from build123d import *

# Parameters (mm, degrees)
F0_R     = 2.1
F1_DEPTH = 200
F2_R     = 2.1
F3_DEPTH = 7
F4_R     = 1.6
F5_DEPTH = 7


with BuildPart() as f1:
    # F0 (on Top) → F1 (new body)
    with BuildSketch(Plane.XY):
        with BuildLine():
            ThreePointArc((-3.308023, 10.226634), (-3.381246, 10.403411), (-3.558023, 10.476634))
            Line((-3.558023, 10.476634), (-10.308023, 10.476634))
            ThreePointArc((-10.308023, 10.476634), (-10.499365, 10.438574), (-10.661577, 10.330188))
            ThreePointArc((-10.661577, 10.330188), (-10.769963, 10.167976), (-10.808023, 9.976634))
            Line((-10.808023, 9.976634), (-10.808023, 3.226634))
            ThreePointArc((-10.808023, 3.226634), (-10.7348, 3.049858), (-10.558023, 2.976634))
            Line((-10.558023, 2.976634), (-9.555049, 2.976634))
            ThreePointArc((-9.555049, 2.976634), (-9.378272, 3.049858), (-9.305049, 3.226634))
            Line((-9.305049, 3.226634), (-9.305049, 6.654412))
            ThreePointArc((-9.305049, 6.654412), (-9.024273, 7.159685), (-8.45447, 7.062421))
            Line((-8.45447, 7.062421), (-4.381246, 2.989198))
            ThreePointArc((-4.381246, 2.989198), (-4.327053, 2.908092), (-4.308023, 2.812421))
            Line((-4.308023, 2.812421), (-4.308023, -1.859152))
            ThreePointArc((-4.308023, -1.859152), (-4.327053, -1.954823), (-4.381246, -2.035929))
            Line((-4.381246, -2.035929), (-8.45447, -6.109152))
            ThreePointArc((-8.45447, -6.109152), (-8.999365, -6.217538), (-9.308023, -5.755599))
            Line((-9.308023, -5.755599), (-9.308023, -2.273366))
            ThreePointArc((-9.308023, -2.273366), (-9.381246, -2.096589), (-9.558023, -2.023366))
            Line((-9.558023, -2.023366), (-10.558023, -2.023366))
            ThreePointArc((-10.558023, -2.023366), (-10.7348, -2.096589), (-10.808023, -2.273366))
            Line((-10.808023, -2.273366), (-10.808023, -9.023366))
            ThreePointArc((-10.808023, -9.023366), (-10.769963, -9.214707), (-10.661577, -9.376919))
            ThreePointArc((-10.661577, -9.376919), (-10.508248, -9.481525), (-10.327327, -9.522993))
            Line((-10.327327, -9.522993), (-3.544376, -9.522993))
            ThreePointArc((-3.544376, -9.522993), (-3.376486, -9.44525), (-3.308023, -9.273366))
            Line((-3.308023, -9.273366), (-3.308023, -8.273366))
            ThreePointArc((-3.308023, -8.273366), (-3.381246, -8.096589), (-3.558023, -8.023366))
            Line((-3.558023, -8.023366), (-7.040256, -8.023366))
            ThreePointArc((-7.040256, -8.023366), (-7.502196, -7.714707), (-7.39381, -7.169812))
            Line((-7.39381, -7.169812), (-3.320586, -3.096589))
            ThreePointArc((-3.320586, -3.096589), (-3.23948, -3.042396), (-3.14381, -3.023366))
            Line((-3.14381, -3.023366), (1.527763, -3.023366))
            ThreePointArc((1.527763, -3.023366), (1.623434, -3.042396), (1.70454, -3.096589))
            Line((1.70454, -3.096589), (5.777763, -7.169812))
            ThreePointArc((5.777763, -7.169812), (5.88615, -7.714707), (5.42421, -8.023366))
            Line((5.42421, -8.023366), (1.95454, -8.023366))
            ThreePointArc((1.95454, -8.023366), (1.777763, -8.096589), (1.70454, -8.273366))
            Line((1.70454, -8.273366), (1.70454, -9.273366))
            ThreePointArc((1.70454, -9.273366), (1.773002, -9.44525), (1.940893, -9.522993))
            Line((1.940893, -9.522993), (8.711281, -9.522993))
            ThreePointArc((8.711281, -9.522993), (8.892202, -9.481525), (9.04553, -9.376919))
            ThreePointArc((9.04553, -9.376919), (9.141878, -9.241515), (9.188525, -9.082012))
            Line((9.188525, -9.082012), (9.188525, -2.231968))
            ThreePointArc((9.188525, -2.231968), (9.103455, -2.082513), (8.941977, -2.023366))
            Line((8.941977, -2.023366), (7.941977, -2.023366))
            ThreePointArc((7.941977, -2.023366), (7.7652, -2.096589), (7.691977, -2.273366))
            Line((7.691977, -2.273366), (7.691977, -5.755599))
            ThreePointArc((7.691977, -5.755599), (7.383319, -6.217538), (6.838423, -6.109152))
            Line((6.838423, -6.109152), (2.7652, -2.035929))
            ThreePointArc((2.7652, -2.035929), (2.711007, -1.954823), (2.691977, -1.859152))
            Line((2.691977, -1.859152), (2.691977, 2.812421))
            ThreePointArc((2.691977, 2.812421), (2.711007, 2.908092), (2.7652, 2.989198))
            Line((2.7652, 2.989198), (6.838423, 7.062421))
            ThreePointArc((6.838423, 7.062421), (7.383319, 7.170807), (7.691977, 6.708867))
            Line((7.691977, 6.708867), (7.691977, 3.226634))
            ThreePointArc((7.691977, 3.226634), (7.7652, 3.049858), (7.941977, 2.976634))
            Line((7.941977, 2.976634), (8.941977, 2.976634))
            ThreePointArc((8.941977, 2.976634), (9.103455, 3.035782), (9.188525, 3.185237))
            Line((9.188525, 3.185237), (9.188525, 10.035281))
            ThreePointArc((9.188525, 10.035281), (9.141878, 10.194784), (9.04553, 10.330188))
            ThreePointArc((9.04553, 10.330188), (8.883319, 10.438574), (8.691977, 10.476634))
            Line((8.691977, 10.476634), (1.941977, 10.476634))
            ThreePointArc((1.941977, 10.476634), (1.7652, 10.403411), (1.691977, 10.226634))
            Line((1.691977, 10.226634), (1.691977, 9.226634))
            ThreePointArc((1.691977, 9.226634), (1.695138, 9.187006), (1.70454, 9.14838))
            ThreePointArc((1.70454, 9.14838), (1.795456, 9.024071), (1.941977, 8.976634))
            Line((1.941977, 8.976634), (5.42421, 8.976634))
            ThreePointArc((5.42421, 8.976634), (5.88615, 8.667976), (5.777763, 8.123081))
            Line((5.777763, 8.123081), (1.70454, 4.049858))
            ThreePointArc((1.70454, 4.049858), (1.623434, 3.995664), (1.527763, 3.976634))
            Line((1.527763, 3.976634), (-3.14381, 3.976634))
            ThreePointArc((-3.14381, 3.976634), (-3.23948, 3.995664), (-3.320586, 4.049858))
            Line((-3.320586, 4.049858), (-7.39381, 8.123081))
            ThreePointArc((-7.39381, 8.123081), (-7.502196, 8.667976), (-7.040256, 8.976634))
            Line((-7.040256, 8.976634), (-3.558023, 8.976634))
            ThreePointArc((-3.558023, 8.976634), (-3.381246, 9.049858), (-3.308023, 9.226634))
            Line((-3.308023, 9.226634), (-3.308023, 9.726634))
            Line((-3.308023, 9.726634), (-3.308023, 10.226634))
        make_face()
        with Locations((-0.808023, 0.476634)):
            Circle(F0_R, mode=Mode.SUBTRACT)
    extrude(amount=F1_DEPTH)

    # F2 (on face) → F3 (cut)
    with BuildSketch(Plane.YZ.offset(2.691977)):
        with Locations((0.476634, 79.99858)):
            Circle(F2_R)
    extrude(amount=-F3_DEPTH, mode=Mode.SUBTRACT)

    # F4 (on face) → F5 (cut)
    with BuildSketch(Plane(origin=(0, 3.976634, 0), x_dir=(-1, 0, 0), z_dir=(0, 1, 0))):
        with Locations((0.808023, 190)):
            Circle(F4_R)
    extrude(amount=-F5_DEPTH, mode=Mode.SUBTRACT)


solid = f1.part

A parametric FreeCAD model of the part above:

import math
import FreeCAD as App
import Part
import Sketcher

V = App.Vector
Q = App.Units.Quantity

doc = App.newDocument("Part")
params = doc.addObject("Spreadsheet::Sheet", "Params")
for row, (alias, value) in enumerate([
    ("sketch1_diameter", "4.2 mm"),
    ("sketch1_radius", "0.500002 mm"),
    ("sketch1_width", "1 mm"),
    ("sketch1_radius2", "0.249999 mm"),
    ("sketch1_width2", "6.75 mm"),
    ("pad1_length", "200 mm"),
    ("sketch2_diameter", "4.2 mm"),
    ("pocket1_length", "7 mm"),
    ("sketch3_diameter", "3.2 mm"),
    ("pocket2_length", "7 mm"),
], start=1):
    params.set(f"A{row}", alias)
    params.set(f"B{row}", "=" + value)
    params.setAlias(f"B{row}", alias)

body = doc.addObject("PartDesign::Body", "Body")

# Sketch on XY plane
sketch1 = body.newObject("Sketcher::SketchObject", "Sketch")
sketch1.AttachmentSupport = (doc.getObject("XY_Plane"), [""])
sketch1.MapMode = "FlatFace"
sketch1.addGeometry([
    Part.ArcOfCircle(Part.Circle(V(-3.56, 10.23, 0), V(0, 0, 1), 0.25), math.radians(0), math.radians(90)),  # 0
    Part.LineSegment(V(-3.56, 10.48, 0), V(-10.31, 10.48, 0)),  # 1
    Part.ArcOfCircle(Part.Circle(V(-10.31, 9.98, 0), V(0, 0, 1), 0.5), math.radians(90), math.radians(135)),  # 2
    Part.ArcOfCircle(Part.Circle(V(-10.31, 9.98, 0), V(0, 0, 1), 0.5), math.radians(135), math.radians(180)),  # 3
    Part.LineSegment(V(-10.81, 9.98, 0), V(-10.81, 3.23, 0)),  # 4
    Part.ArcOfCircle(Part.Circle(V(-10.56, 3.23, 0), V(0, 0, 1), 0.25), math.radians(-180), math.radians(-90)),  # 5
    Part.LineSegment(V(-10.56, 2.98, 0), V(-9.56, 2.98, 0)),  # 6
    Part.ArcOfCircle(Part.Circle(V(-9.56, 3.23, 0), V(0, 0, 1), 0.25), math.radians(-90), math.radians(0)),  # 7
    Part.LineSegment(V(-9.31, 3.23, 0), V(-9.31, 6.65, 0)),  # 8
    Part.ArcOfCircle(Part.Circle(V(-8.81, 6.71, 0), V(0, 0, 1), 0.5), math.radians(45), math.radians(186)),  # 9
    Part.LineSegment(V(-8.45, 7.06, 0), V(-4.38, 2.99, 0)),  # 10
    Part.ArcOfCircle(Part.Circle(V(-4.56, 2.81, 0), V(0, 0, 1), 0.25), math.radians(0), math.radians(45)),  # 11
    Part.LineSegment(V(-4.31, 2.81, 0), V(-4.31, -1.86, 0)),  # 12
    Part.ArcOfCircle(Part.Circle(V(-4.56, -1.86, 0), V(0, 0, 1), 0.25), math.radians(-45), math.radians(0)),  # 13
    Part.LineSegment(V(-4.38, -2.04, 0), V(-8.45, -6.11, 0)),  # 14
    Part.ArcOfCircle(Part.Circle(V(-8.81, -5.76, 0), V(0, 0, 1), 0.5), math.radians(-180), math.radians(-45)),  # 15
    Part.LineSegment(V(-9.31, -5.76, 0), V(-9.31, -2.27, 0)),  # 16
    Part.ArcOfCircle(Part.Circle(V(-9.56, -2.27, 0), V(0, 0, 1), 0.25), math.radians(0), math.radians(90)),  # 17
    Part.LineSegment(V(-9.56, -2.02, 0), V(-10.56, -2.02, 0)),  # 18
    Part.ArcOfCircle(Part.Circle(V(-10.56, -2.27, 0), V(0, 0, 1), 0.25), math.radians(90), math.radians(180)),  # 19
    Part.LineSegment(V(-10.81, -2.27, 0), V(-10.81, -9.02, 0)),  # 20
    Part.ArcOfCircle(Part.Circle(V(-10.31, -9.02, 0), V(0, 0, 1), 0.5), math.radians(-180), math.radians(-135)),  # 21
    Part.ArcOfCircle(Part.Circle(V(-10.31, -9.02, 0), V(0, 0, 1), 0.5), math.radians(-135), math.radians(-92)),  # 22
    Part.LineSegment(V(-10.33, -9.52, 0), V(-3.54, -9.52, 0)),  # 23
    Part.ArcOfCircle(Part.Circle(V(-3.56, -9.27, 0), V(0, 0, 1), 0.25), math.radians(-87), math.radians(0)),  # 24
    Part.LineSegment(V(-3.31, -9.27, 0), V(-3.31, -8.27, 0)),  # 25
    Part.ArcOfCircle(Part.Circle(V(-3.56, -8.27, 0), V(0, 0, 1), 0.25), math.radians(0), math.radians(90)),  # 26
    Part.LineSegment(V(-3.56, -8.02, 0), V(-7.04, -8.02, 0)),  # 27
    Part.ArcOfCircle(Part.Circle(V(-7.04, -7.52, 0), V(0, 0, 1), 0.5), math.radians(135), math.radians(270)),  # 28
    Part.LineSegment(V(-7.39, -7.17, 0), V(-3.32, -3.1, 0)),  # 29
    Part.ArcOfCircle(Part.Circle(V(-3.14, -3.27, 0), V(0, 0, 1), 0.25), math.radians(90), math.radians(135)),  # 30
    Part.LineSegment(V(-3.14, -3.02, 0), V(1.53, -3.02, 0)),  # 31
    Part.ArcOfCircle(Part.Circle(V(1.53, -3.27, 0), V(0, 0, 1), 0.25), math.radians(45), math.radians(90)),  # 32
    Part.LineSegment(V(1.7, -3.1, 0), V(5.78, -7.17, 0)),  # 33
    Part.ArcOfCircle(Part.Circle(V(5.42, -7.52, 0), V(0, 0, 1), 0.5), math.radians(-90), math.radians(45)),  # 34
    Part.LineSegment(V(5.42, -8.02, 0), V(1.95, -8.02, 0)),  # 35
    Part.ArcOfCircle(Part.Circle(V(1.95, -8.27, 0), V(0, 0, 1), 0.25), math.radians(90), math.radians(180)),  # 36
    Part.LineSegment(V(1.7, -8.27, 0), V(1.7, -9.27, 0)),  # 37
    Part.ArcOfCircle(Part.Circle(V(1.95, -9.27, 0), V(0, 0, 1), 0.25), math.radians(180), math.radians(267)),  # 38
    Part.LineSegment(V(1.94, -9.52, 0), V(8.71, -9.52, 0)),  # 39
    Part.ArcOfCircle(Part.Circle(V(8.69, -9.02, 0), V(0, 0, 1), 0.5), math.radians(-88), math.radians(-45)),  # 40
    Part.ArcOfCircle(Part.Circle(V(8.69, -9.02, 0), V(0, 0, 1), 0.5), math.radians(-45), math.radians(-7)),  # 41
    Part.LineSegment(V(9.19, -9.08, 0), V(9.19, -2.23, 0)),  # 42
    Part.ArcOfCircle(Part.Circle(V(8.94, -2.27, 0), V(0, 0, 1), 0.25), math.radians(10), math.radians(90)),  # 43
    Part.LineSegment(V(8.94, -2.02, 0), V(7.94, -2.02, 0)),  # 44
    Part.ArcOfCircle(Part.Circle(V(7.94, -2.27, 0), V(0, 0, 1), 0.25), math.radians(90), math.radians(180)),  # 45
    Part.LineSegment(V(7.69, -2.27, 0), V(7.69, -5.76, 0)),  # 46
    Part.ArcOfCircle(Part.Circle(V(7.19, -5.76, 0), V(0, 0, 1), 0.5), math.radians(-135), math.radians(0)),  # 47
    Part.LineSegment(V(6.84, -6.11, 0), V(2.77, -2.04, 0)),  # 48
    Part.ArcOfCircle(Part.Circle(V(2.94, -1.86, 0), V(0, 0, 1), 0.25), math.radians(180), math.radians(225)),  # 49
    Part.LineSegment(V(2.69, -1.86, 0), V(2.69, 2.81, 0)),  # 50
    Part.ArcOfCircle(Part.Circle(V(2.94, 2.81, 0), V(0, 0, 1), 0.25), math.radians(135), math.radians(180)),  # 51
    Part.LineSegment(V(2.77, 2.99, 0), V(6.84, 7.06, 0)),  # 52
    Part.ArcOfCircle(Part.Circle(V(7.19, 6.71, 0), V(0, 0, 1), 0.5), math.radians(0), math.radians(135)),  # 53
    Part.LineSegment(V(7.69, 6.71, 0), V(7.69, 3.23, 0)),  # 54
    Part.ArcOfCircle(Part.Circle(V(7.94, 3.23, 0), V(0, 0, 1), 0.25), math.radians(-180), math.radians(-90)),  # 55
    Part.LineSegment(V(7.94, 2.98, 0), V(8.94, 2.98, 0)),  # 56
    Part.ArcOfCircle(Part.Circle(V(8.94, 3.23, 0), V(0, 0, 1), 0.25), math.radians(-90), math.radians(-10)),  # 57
    Part.LineSegment(V(9.19, 3.19, 0), V(9.19, 10.04, 0)),  # 58
    Part.ArcOfCircle(Part.Circle(V(8.69, 9.98, 0), V(0, 0, 1), 0.5), math.radians(7), math.radians(45)),  # 59
    Part.ArcOfCircle(Part.Circle(V(8.69, 9.98, 0), V(0, 0, 1), 0.5), math.radians(45), math.radians(90)),  # 60
    Part.LineSegment(V(8.69, 10.48, 0), V(1.94, 10.48, 0)),  # 61
    Part.ArcOfCircle(Part.Circle(V(1.94, 10.23, 0), V(0, 0, 1), 0.25), math.radians(90), math.radians(180)),  # 62
    Part.LineSegment(V(1.69, 10.23, 0), V(1.69, 9.23, 0)),  # 63
    Part.ArcOfCircle(Part.Circle(V(1.94, 9.23, 0), V(0, 0, 1), 0.25), math.radians(-180), math.radians(-161.76)),  # 64
    Part.ArcOfCircle(Part.Circle(V(1.94, 9.23, 0), V(0, 0, 1), 0.25), math.radians(-162), math.radians(-90)),  # 65
    Part.LineSegment(V(1.94, 8.98, 0), V(5.42, 8.98, 0)),  # 66
    Part.ArcOfCircle(Part.Circle(V(5.42, 8.48, 0), V(0, 0, 1), 0.5), math.radians(-45), math.radians(90)),  # 67
    Part.LineSegment(V(5.78, 8.12, 0), V(1.7, 4.05, 0)),  # 68
    Part.ArcOfCircle(Part.Circle(V(1.53, 4.23, 0), V(0, 0, 1), 0.25), math.radians(-90), math.radians(-45)),  # 69
    Part.LineSegment(V(1.53, 3.98, 0), V(-3.14, 3.98, 0)),  # 70
    Part.ArcOfCircle(Part.Circle(V(-3.14, 4.23, 0), V(0, 0, 1), 0.25), math.radians(-135), math.radians(-90)),  # 71
    Part.LineSegment(V(-3.32, 4.05, 0), V(-7.39, 8.12, 0)),  # 72
    Part.ArcOfCircle(Part.Circle(V(-7.04, 8.48, 0), V(0, 0, 1), 0.5), math.radians(90), math.radians(225)),  # 73
    Part.LineSegment(V(-7.04, 8.98, 0), V(-3.56, 8.98, 0)),  # 74
    Part.ArcOfCircle(Part.Circle(V(-3.56, 9.23, 0), V(0, 0, 1), 0.25), math.radians(-90), math.radians(0)),  # 75
    Part.LineSegment(V(-3.31, 9.23, 0), V(-3.31, 10.23, 0)),  # 76
    Part.Circle(V(-0.81, 0.48, 0), V(0, 0, 1), 2.1),  # 77
], False)
sketch1.addConstraint([
    Sketcher.Constraint("Coincident", 0, 2, 1, 1),
    Sketcher.Constraint("Tangent", 1, 2, 2, 1),
    Sketcher.Constraint("Coincident", 2, 2, 3, 1),
    Sketcher.Constraint("Tangent", 3, 2, 4, 1),
    Sketcher.Constraint("Coincident", 4, 2, 5, 1),
    Sketcher.Constraint("Coincident", 5, 2, 6, 1),
    Sketcher.Constraint("Coincident", 6, 2, 7, 1),
    Sketcher.Constraint("Coincident", 7, 2, 8, 1),
    Sketcher.Constraint("Coincident", 8, 2, 9, 2),
    Sketcher.Constraint("Tangent", 9, 1, 10, 1),
    Sketcher.Constraint("Coincident", 10, 2, 11, 2),
    Sketcher.Constraint("Tangent", 11, 1, 12, 1),
    Sketcher.Constraint("Tangent", 12, 2, 13, 2),
    Sketcher.Constraint("Coincident", 13, 1, 14, 1),
    Sketcher.Constraint("Tangent", 14, 2, 15, 2),
    Sketcher.Constraint("Tangent", 15, 1, 16, 1),
    Sketcher.Constraint("Coincident", 16, 2, 17, 1),
    Sketcher.Constraint("Coincident", 17, 2, 18, 1),
    Sketcher.Constraint("Coincident", 18, 2, 19, 1),
    Sketcher.Constraint("Coincident", 19, 2, 20, 1),
    Sketcher.Constraint("Tangent", 20, 2, 21, 1),
    Sketcher.Constraint("Coincident", 21, 2, 22, 1),
    Sketcher.Constraint("Coincident", 22, 2, 23, 1),
    Sketcher.Constraint("Coincident", 23, 2, 24, 1),
    Sketcher.Constraint("Coincident", 24, 2, 25, 1),
    Sketcher.Constraint("Coincident", 25, 2, 26, 1),
    Sketcher.Constraint("Coincident", 26, 2, 27, 1),
    Sketcher.Constraint("Tangent", 27, 2, 28, 2),
    Sketcher.Constraint("Tangent", 28, 1, 29, 1),
    Sketcher.Constraint("Coincident", 29, 2, 30, 2),
    Sketcher.Constraint("Coincident", 30, 1, 31, 1),
    Sketcher.Constraint("Tangent", 31, 2, 32, 2),
    Sketcher.Constraint("Coincident", 32, 1, 33, 1),
    Sketcher.Constraint("Tangent", 33, 2, 34, 2),
    Sketcher.Constraint("Tangent", 34, 1, 35, 1),
    Sketcher.Constraint("Coincident", 35, 2, 36, 1),
    Sketcher.Constraint("Coincident", 36, 2, 37, 1),
    Sketcher.Constraint("Coincident", 37, 2, 38, 1),
    Sketcher.Constraint("Coincident", 38, 2, 39, 1),
    Sketcher.Constraint("Coincident", 39, 2, 40, 1),
    Sketcher.Constraint("Coincident", 40, 2, 41, 1),
    Sketcher.Constraint("Coincident", 41, 2, 42, 1),
    Sketcher.Constraint("Coincident", 42, 2, 43, 1),
    Sketcher.Constraint("Coincident", 43, 2, 44, 1),
    Sketcher.Constraint("Coincident", 44, 2, 45, 1),
    Sketcher.Constraint("Coincident", 45, 2, 46, 1),
    Sketcher.Constraint("Tangent", 46, 2, 47, 2),
    Sketcher.Constraint("Tangent", 47, 1, 48, 1),
    Sketcher.Constraint("Coincident", 48, 2, 49, 2),
    Sketcher.Constraint("Tangent", 49, 1, 50, 1),
    Sketcher.Constraint("Tangent", 50, 2, 51, 2),
    Sketcher.Constraint("Coincident", 51, 1, 52, 1),
    Sketcher.Constraint("Tangent", 52, 2, 53, 2),
    Sketcher.Constraint("Tangent", 53, 1, 54, 1),
    Sketcher.Constraint("Coincident", 54, 2, 55, 1),
    Sketcher.Constraint("Coincident", 55, 2, 56, 1),
    Sketcher.Constraint("Coincident", 56, 2, 57, 1),
    Sketcher.Constraint("Coincident", 57, 2, 58, 1),
    Sketcher.Constraint("Coincident", 58, 2, 59, 1),
    Sketcher.Constraint("Coincident", 59, 2, 60, 1),
    Sketcher.Constraint("Coincident", 60, 2, 61, 1),
    Sketcher.Constraint("Coincident", 61, 2, 62, 1),
    Sketcher.Constraint("Coincident", 62, 2, 63, 1),
    Sketcher.Constraint("Coincident", 63, 2, 64, 1),
    Sketcher.Constraint("Coincident", 64, 2, 65, 1),
    Sketcher.Constraint("Coincident", 65, 2, 66, 1),
    Sketcher.Constraint("Tangent", 66, 2, 67, 2),
    Sketcher.Constraint("Coincident", 67, 1, 68, 1),
    Sketcher.Constraint("Coincident", 68, 2, 69, 2),
    Sketcher.Constraint("Coincident", 69, 1, 70, 1),
    Sketcher.Constraint("Tangent", 70, 2, 71, 2),
    Sketcher.Constraint("Coincident", 71, 1, 72, 1),
    Sketcher.Constraint("Tangent", 72, 2, 73, 2),
    Sketcher.Constraint("Tangent", 73, 1, 74, 1),
    Sketcher.Constraint("Coincident", 74, 2, 75, 1),
    Sketcher.Constraint("Coincident", 75, 2, 76, 1),
    Sketcher.Constraint("Coincident", 76, 2, 0, 1),
    Sketcher.Constraint("Horizontal", 1),
    Sketcher.Constraint("Vertical", 4),
    Sketcher.Constraint("Horizontal", 6),
    Sketcher.Constraint("Vertical", 8),
    Sketcher.Constraint("Vertical", 12),
    Sketcher.Constraint("Vertical", 16),
    Sketcher.Constraint("Horizontal", 18),
    Sketcher.Constraint("Vertical", 20),
    Sketcher.Constraint("Horizontal", 23),
    Sketcher.Constraint("Vertical", 25),
    Sketcher.Constraint("Horizontal", 27),
    Sketcher.Constraint("Horizontal", 31),
    Sketcher.Constraint("Horizontal", 35),
    Sketcher.Constraint("Vertical", 37),
    Sketcher.Constraint("Horizontal", 39),
    Sketcher.Constraint("Vertical", 42),
    Sketcher.Constraint("Horizontal", 44),
    Sketcher.Constraint("Vertical", 46),
    Sketcher.Constraint("Vertical", 50),
    Sketcher.Constraint("Vertical", 54),
    Sketcher.Constraint("Horizontal", 56),
    Sketcher.Constraint("Vertical", 58),
    Sketcher.Constraint("Horizontal", 61),
    Sketcher.Constraint("Vertical", 63),
    Sketcher.Constraint("Horizontal", 66),
    Sketcher.Constraint("Horizontal", 70),
    Sketcher.Constraint("Horizontal", 74),
    Sketcher.Constraint("Vertical", 76),
    Sketcher.Constraint("Coincident", 3, 3, 2, 3),
    Sketcher.Constraint("Coincident", 22, 3, 21, 3),
    Sketcher.Constraint("Coincident", 41, 3, 40, 3),
    Sketcher.Constraint("Coincident", 60, 3, 59, 3),
    Sketcher.Constraint("Equal", 0, 5),
    Sketcher.Constraint("Equal", 5, 7),
    Sketcher.Constraint("Equal", 3, 9),
    Sketcher.Constraint("Equal", 7, 11),
    Sketcher.Constraint("Equal", 11, 13),
    Sketcher.Constraint("Equal", 9, 15),
    Sketcher.Constraint("Equal", 13, 17),
    Sketcher.Constraint("Equal", 17, 19),
    Sketcher.Constraint("Equal", 15, 21),
    Sketcher.Constraint("Equal", 19, 24),
    Sketcher.Constraint("Equal", 24, 26),
    Sketcher.Constraint("Equal", 21, 28),
    Sketcher.Constraint("Equal", 26, 30),
    Sketcher.Constraint("Equal", 30, 32),
    Sketcher.Constraint("Equal", 28, 34),
    Sketcher.Constraint("Equal", 32, 36),
    Sketcher.Constraint("Equal", 36, 38),
    Sketcher.Constraint("Equal", 34, 40),
    Sketcher.Constraint("Equal", 38, 43),
    Sketcher.Constraint("Equal", 43, 45),
    Sketcher.Constraint("Equal", 34, 47),
    Sketcher.Constraint("Equal", 45, 49),
    Sketcher.Constraint("Equal", 49, 51),
    Sketcher.Constraint("Equal", 47, 53),
    Sketcher.Constraint("Equal", 51, 55),
    Sketcher.Constraint("Equal", 55, 57),
    Sketcher.Constraint("Equal", 41, 59),
    Sketcher.Constraint("Equal", 57, 62),
    Sketcher.Constraint("Equal", 62, 65),
    Sketcher.Constraint("Equal", 53, 67),
    Sketcher.Constraint("Equal", 69, 71),
    Sketcher.Constraint("Equal", 67, 73),
    Sketcher.Constraint("Equal", 62, 75),
    Sketcher.Constraint("Perpendicular", 10, 14),
    Sketcher.Constraint("Parallel", 14, 29),
    Sketcher.Constraint("Perpendicular", 29, 33),
    Sketcher.Constraint("Parallel", 33, 48),
    Sketcher.Constraint("Perpendicular", 48, 52),
    Sketcher.Constraint("Parallel", 52, 68),
    Sketcher.Constraint("Perpendicular", 68, 72),
    Sketcher.Constraint("Horizontal", 28, 3, 34, 3),
    Sketcher.Constraint("Horizontal", 24, 3, 38, 3),
    Sketcher.Constraint("Horizontal", 19, 3, 43, 3),
    Sketcher.Constraint("Horizontal", 15, 3, 47, 3),
    Sketcher.Constraint("Horizontal", 13, 3, 49, 3),
    Sketcher.Constraint("Horizontal", 11, 3, 51, 3),
    Sketcher.Constraint("Horizontal", 9, 3, 53, 3),
    Sketcher.Constraint("Horizontal", 7, 3, 55, 3),
    Sketcher.Constraint("Horizontal", 0, 3, 62, 3),
    Sketcher.Constraint("Horizontal", 67, 3, 73, 3),
    Sketcher.Constraint("Horizontal", 57, 3, 4, 2),
    Sketcher.Constraint("Horizontal", 4, 2, 7, 2),
    Sketcher.Constraint("Horizontal", 45, 3, 16, 2),
    Sketcher.Constraint("Horizontal", 16, 2, 19, 2),
    Sketcher.Constraint("Horizontal", 40, 3, 20, 2),
    Sketcher.Constraint("Horizontal", 38, 3, 24, 2),
    Sketcher.Constraint("Horizontal", 36, 3, 25, 2),
    Sketcher.Constraint("Horizontal", 29, 2, 32, 1),
    Sketcher.Constraint("Horizontal", 28, 1, 33, 2),
    Sketcher.Constraint("Horizontal", 25, 2, 36, 2),
    Sketcher.Constraint("Horizontal", 24, 2, 37, 2),
    Sketcher.Constraint("Horizontal", 23, 2, 38, 2),
    Sketcher.Constraint("Horizontal", 21, 2, 40, 2),
    Sketcher.Constraint("Horizontal", 19, 2, 45, 2),
    Sketcher.Constraint("Horizontal", 13, 1, 48, 2),
    Sketcher.Constraint("Horizontal", 10, 2, 51, 1),
    Sketcher.Constraint("Horizontal", 7, 2, 54, 2),
    Sketcher.Constraint("Horizontal", 2, 2, 59, 2),
    Sketcher.Constraint("Horizontal", 0, 3, 62, 2),
    Sketcher.Constraint("Horizontal", 75, 3, 63, 2),
    Sketcher.Constraint("Horizontal", 68, 2, 71, 1),
    Sketcher.Constraint("Horizontal", 67, 1, 72, 2),
    Sketcher.Constraint("Horizontal", 63, 2, 75, 2),
    Sketcher.Constraint("Horizontal", 62, 2, 76, 2),
    Sketcher.Constraint("Vertical", 9, 3, 15, 3),
    Sketcher.Constraint("Vertical", 5, 3, 19, 3),
    Sketcher.Constraint("Vertical", 0, 3, 24, 3),
    Sketcher.Constraint("Vertical", 43, 3, 57, 3),
    Sketcher.Constraint("Vertical", 41, 3, 59, 3),
    Sketcher.Constraint("Vertical", 62, 3, 65, 3),
    Sketcher.Constraint("Vertical", 34, 3, 67, 3),
    Sketcher.Constraint("Vertical", 32, 3, 69, 3),
    Sketcher.Constraint("Vertical", 30, 3, 71, 3),
    Sketcher.Constraint("Vertical", 75, 3, 0, 2),
    Sketcher.Constraint("Vertical", 19, 3, 5, 2),
    Sketcher.Constraint("Vertical", 7, 3, 6, 2),
    Sketcher.Constraint("Vertical", 10, 2, 13, 1),
    Sketcher.Constraint("Vertical", 5, 2, 18, 2),
    Sketcher.Constraint("Vertical", 2, 2, 21, 2),
    Sketcher.Constraint("Vertical", 0, 2, 26, 2),
    Sketcher.Constraint("Vertical", 71, 3, 30, 1),
    Sketcher.Constraint("Vertical", 38, 3, 35, 2),
    Sketcher.Constraint("Vertical", 32, 1, 36, 2),
    Sketcher.Constraint("Vertical", 57, 3, 43, 2),
    Sketcher.Constraint("Vertical", 55, 3, 44, 2),
    Sketcher.Constraint("Vertical", 44, 2, 55, 2),
    Sketcher.Constraint("Vertical", 43, 2, 56, 2),
    Sketcher.Constraint("Vertical", 42, 2, 57, 2),
    Sketcher.Constraint("Vertical", 40, 3, 60, 2),
    Sketcher.Constraint("Vertical", 65, 3, 61, 2),
    Sketcher.Constraint("Vertical", 37, 2, 64, 2),
    Sketcher.Constraint("Vertical", 61, 2, 65, 2),
    Sketcher.Constraint("Vertical", 64, 2, 68, 2),
    Sketcher.Constraint("Vertical", 31, 2, 69, 1),
    Sketcher.Constraint("Vertical", 26, 2, 74, 2),
    Sketcher.Constraint("Equal", 18, 44),
    Sketcher.Constraint("Equal", 1, 61),
    Sketcher.Constraint("Equal", 27, 66),
    Sketcher.Constraint("Equal", 61, 4),
    Sketcher.Constraint("Equal", 70, 12),
    Sketcher.Constraint("Equal", 74, 16),
    Sketcher.Constraint("Equal", 4, 20),
    Sketcher.Constraint("Equal", 56, 25),
    Sketcher.Constraint("Equal", 46, 54),
    Sketcher.Constraint("Equal", 37, 63),
    Sketcher.Constraint("Equal", 14, 29),
    Sketcher.Constraint("Diameter", 77, Q("4.2 mm")),
    Sketcher.Constraint("Radius", 2, Q("0.500002 mm")),
    Sketcher.Constraint("DistanceX", 18, 2, 18, 1, Q("1 mm")),
    Sketcher.Constraint("Radius", 0, Q("0.249999 mm")),
    Sketcher.Constraint("DistanceX", 1, 2, 1, 1, Q("6.75 mm")),
    Sketcher.Constraint("Radius", 64, Q("0.250022 mm")),
    Sketcher.Constraint("DistanceX", -1, 1, 64, 3, Q("1.941999 mm")),
    Sketcher.Constraint("Radius", 69, Q("0.249996 mm")),
    Sketcher.Constraint("DistanceX", 23, 1, 23, 2, Q("6.782951 mm")),
    Sketcher.Constraint("DistanceX", 35, 2, 35, 1, Q("3.46967 mm")),
    Sketcher.Constraint("DistanceY", 8, 1, 8, 2, Q("3.427778 mm")),
    Sketcher.Constraint("DistanceY", 15, 3, -1, 1, Q("5.755598 mm")),
    Sketcher.Constraint("DistanceY", -1, 1, 10, 2, Q("2.989198 mm")),
    Sketcher.Constraint("DistanceX", -1, 1, 48, 2, Q("2.7652 mm")),
    Sketcher.Constraint("DistanceX", 6, 1, 6, 2, Q("1.002974 mm")),
    Sketcher.Constraint("DistanceX", 27, 2, 27, 1, Q("3.482233 mm")),
    Sketcher.Constraint("DistanceX", 31, 1, 31, 2, Q("4.671573 mm")),
    Sketcher.Constraint("DistanceY", 42, 1, 42, 2, Q("6.850044 mm")),
    Sketcher.Constraint("DistanceX", 0, 3, -1, 1, Q("3.558022 mm")),
    Sketcher.Constraint("DistanceY", -1, 1, 2, 2, Q("10.330188 mm")),
    Sketcher.Constraint("DistanceY", 28, 1, -1, 1, Q("7.169812 mm")),
    Sketcher.Constraint("DistanceX", 77, 3, -1, 1, Q("0.808023 mm")),
    Sketcher.Constraint("DistanceY", -1, 1, 77, 3, Q("0.476634 mm")),
])
sketch1.setExpression("Constraints[225]", "Params.sketch1_diameter")
sketch1.setExpression("Constraints[226]", "Params.sketch1_radius")
sketch1.setExpression("Constraints[227]", "Params.sketch1_width")
sketch1.setExpression("Constraints[228]", "Params.sketch1_radius2")
sketch1.setExpression("Constraints[229]", "Params.sketch1_width2")
pad1 = body.newObject("PartDesign::Pad", "Pad")
pad1.Profile = sketch1
pad1.setExpression("Length", "Params.pad1_length")

# Sketch on YZ plane
sketch2 = body.newObject("Sketcher::SketchObject", "Sketch001")
sketch2.AttachmentSupport = (doc.getObject("YZ_Plane"), [""])
sketch2.MapMode = "FlatFace"
sketch2.AttachmentOffset = App.Placement(V(0, 0, 2.691977), App.Rotation())
sketch2.addGeometry(Part.Circle(V(0.5, 80, 0), V(0, 0, 1), 2.1), False)
sketch2.addConstraint([
    Sketcher.Constraint("Diameter", 0, Q("4.2 mm")),
    Sketcher.Constraint("DistanceY", -1, 1, 0, 3, Q("79.99858 mm")),
    Sketcher.Constraint("DistanceX", -1, 1, 0, 3, Q("0.476634 mm")),
])
sketch2.setExpression("Constraints[0]", "Params.sketch2_diameter")
pocket1 = body.newObject("PartDesign::Pocket", "Pocket")
pocket1.Profile = sketch2
pocket1.setExpression("Length", "Params.pocket1_length")

# Sketch on XZ plane
sketch3 = body.newObject("Sketcher::SketchObject", "Sketch002")
sketch3.AttachmentSupport = (doc.getObject("XZ_Plane"), [""])
sketch3.MapMode = "FlatFace"
sketch3.AttachmentOffset = App.Placement(V(0, 0, -3.976634), App.Rotation())
sketch3.addGeometry(Part.Circle(V(-0.8, 190, 0), V(0, 0, 1), 1.6), False)
sketch3.addConstraint([
    Sketcher.Constraint("Diameter", 0, Q("3.2 mm")),
    Sketcher.Constraint("DistanceY", -1, 1, 0, 3, Q("190 mm")),
    Sketcher.Constraint("DistanceX", 0, 3, -1, 1, Q("0.808023 mm")),
])
sketch3.setExpression("Constraints[0]", "Params.sketch3_diameter")
pocket2 = body.newObject("PartDesign::Pocket", "Pocket001")
pocket2.Profile = sketch3
pocket2.setExpression("Length", "Params.pocket2_length")
pocket2.Reversed = True

doc.recompute()
